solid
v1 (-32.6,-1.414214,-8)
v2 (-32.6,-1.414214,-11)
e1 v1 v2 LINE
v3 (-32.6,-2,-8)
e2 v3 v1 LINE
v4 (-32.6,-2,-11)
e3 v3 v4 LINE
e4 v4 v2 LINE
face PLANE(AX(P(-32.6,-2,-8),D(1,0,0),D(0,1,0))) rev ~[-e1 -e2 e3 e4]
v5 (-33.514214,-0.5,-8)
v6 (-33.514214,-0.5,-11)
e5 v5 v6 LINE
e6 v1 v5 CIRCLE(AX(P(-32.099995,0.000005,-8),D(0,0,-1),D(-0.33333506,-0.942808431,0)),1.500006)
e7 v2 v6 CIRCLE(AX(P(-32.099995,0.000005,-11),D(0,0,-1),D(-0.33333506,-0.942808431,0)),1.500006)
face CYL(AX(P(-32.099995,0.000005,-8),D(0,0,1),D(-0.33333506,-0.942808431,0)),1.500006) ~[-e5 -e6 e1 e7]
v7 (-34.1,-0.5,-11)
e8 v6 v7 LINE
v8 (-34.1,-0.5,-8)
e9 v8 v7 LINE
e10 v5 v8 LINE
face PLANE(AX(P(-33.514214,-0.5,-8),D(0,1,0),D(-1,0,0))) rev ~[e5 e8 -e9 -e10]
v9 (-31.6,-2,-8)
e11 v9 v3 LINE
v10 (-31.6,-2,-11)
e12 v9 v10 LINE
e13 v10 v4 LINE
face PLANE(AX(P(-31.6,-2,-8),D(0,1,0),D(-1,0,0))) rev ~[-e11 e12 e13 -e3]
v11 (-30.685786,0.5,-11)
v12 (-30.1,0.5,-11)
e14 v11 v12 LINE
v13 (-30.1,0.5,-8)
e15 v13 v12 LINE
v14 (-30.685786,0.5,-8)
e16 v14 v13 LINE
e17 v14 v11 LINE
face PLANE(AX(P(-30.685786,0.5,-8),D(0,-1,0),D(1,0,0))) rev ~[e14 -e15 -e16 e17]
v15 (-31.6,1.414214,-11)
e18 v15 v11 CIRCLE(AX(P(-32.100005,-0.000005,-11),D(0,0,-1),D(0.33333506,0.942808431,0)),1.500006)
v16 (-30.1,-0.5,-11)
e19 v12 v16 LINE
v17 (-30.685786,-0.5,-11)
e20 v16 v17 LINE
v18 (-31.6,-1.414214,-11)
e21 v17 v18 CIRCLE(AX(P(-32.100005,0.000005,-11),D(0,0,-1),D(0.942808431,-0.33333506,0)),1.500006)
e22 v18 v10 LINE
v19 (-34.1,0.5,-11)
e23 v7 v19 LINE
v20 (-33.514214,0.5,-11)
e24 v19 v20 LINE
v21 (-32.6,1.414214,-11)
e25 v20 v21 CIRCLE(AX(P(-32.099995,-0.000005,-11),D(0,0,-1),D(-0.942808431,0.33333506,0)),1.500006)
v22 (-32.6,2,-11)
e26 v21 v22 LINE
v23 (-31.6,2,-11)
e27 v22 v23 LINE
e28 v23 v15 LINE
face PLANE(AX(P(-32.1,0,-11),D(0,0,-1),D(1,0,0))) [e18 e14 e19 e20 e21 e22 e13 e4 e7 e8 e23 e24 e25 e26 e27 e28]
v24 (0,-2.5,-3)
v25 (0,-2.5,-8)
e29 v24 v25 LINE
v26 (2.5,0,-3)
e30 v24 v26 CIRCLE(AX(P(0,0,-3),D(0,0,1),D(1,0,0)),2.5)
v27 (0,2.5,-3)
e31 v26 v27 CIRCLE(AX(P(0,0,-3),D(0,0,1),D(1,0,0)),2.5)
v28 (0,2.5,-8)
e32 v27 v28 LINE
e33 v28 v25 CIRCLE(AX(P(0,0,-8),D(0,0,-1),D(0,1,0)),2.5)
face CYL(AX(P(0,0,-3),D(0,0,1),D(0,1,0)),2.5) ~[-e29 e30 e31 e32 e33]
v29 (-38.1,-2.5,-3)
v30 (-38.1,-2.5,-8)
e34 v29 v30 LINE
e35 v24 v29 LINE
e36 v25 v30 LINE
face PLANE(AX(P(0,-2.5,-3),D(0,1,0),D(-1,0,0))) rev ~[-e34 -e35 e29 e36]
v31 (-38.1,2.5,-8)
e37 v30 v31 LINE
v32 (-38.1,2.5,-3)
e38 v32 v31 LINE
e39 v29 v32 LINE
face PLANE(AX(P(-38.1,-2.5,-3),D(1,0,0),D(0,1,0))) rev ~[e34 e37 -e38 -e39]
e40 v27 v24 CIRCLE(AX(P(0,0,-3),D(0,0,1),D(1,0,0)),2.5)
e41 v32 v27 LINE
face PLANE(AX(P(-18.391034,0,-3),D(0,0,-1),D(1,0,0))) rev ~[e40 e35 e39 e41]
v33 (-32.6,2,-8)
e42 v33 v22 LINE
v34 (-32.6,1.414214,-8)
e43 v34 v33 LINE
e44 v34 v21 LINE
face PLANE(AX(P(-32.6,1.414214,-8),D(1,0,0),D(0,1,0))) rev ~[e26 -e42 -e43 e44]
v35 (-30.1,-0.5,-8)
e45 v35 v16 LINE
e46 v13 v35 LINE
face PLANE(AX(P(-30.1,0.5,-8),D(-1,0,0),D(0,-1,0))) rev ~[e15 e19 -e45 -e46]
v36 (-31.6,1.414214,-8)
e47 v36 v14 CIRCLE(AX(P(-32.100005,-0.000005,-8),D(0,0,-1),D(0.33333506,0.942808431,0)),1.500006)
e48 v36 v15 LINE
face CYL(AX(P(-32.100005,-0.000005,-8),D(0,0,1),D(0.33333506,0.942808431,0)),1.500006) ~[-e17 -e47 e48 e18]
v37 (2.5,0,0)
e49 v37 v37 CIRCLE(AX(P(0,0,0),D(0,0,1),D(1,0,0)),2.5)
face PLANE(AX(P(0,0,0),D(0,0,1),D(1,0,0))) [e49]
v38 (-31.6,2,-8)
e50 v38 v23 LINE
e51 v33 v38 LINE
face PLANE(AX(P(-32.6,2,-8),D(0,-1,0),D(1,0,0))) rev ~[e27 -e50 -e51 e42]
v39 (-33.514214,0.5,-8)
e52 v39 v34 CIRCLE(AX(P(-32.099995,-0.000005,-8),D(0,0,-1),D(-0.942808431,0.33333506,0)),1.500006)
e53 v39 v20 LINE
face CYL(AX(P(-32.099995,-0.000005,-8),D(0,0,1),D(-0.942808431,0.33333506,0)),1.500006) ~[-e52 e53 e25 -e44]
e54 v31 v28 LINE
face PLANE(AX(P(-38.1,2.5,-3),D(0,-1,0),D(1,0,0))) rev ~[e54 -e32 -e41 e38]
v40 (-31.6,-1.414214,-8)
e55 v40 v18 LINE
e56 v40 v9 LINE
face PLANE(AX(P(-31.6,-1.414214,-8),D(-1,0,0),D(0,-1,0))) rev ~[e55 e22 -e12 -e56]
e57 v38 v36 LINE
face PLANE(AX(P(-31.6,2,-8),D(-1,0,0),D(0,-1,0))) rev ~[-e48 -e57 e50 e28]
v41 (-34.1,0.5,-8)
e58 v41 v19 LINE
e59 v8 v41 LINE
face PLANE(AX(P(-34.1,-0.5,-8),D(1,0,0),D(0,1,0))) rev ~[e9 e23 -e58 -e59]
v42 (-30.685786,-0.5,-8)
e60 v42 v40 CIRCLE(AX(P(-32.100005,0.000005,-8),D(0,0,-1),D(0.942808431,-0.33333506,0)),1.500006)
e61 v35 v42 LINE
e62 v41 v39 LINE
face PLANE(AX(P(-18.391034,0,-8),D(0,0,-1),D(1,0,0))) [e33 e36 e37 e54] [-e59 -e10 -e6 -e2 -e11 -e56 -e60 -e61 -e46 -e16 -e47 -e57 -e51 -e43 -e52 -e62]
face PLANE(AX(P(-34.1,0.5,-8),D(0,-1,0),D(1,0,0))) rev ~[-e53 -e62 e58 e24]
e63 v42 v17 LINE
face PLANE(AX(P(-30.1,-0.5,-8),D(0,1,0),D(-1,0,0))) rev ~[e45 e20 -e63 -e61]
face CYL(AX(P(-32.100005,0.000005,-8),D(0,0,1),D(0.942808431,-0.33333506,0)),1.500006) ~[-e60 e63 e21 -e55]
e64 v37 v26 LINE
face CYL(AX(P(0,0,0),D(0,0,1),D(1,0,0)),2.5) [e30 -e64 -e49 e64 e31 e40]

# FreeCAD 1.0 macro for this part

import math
import FreeCAD as App
import Part
import Sketcher
Q = App.Units.Quantity

doc = App.newDocument("Part")
body = doc.addObject("PartDesign::Body", "Body")

# Sketch on XY plane
sketch1 = body.newObject("Sketcher::SketchObject", "Sketch")
sketch1.AttachmentSupport = (doc.getObject("XY_Plane"), [""])
sketch1.MapMode = "FlatFace"
sketch1.addGeometry(Part.Circle(App.Vector(0, 0, 0), App.Vector(0, 0, 1), 2.5), False)
sketch1.addConstraint(Sketcher.Constraint("Coincident", 0, 3, -1, 1))
sketch1.addConstraint(Sketcher.Constraint("Diameter", 0, Q("5 mm")))
pad1 = body.newObject("PartDesign::Pad", "Pad")
pad1.Profile = sketch1
pad1.Length = 3
pad1.Reversed = True

# Sketch on XY plane
sketch2 = body.newObject("Sketcher::SketchObject", "Sketch001")
sketch2.AttachmentSupport = (doc.getObject("XY_Plane"), [""])
sketch2.MapMode = "FlatFace"
sketch2.AttachmentOffset = App.Placement(App.Vector(0, 0, -3), App.Rotation())
sketch2.addGeometry(Part.LineSegment(App.Vector(-38.1, 2.5, 0), App.Vector(0, 2.5, 0)), False)
sketch2.addGeometry(Part.ArcOfCircle(Part.Circle(App.Vector(0, 0, 0), App.Vector(0, 0, 1), 2.5), math.radians(-90), math.radians(90)), False)
sketch2.addGeometry(Part.LineSegment(App.Vector(0, -2.5, 0), App.Vector(-38.1, -2.5, 0)), False)
sketch2.addGeometry(Part.LineSegment(App.Vector(-38.1, -2.5, 0), App.Vector(-38.1, 2.5, 0)), False)
sketch2.addConstraint(Sketcher.Constraint("Tangent", 0, 2, 1, 2))
sketch2.addConstraint(Sketcher.Constraint("Tangent", 1, 1, 2, 1))
sketch2.addConstraint(Sketcher.Constraint("Coincident", 2, 2, 3, 1))
sketch2.addConstraint(Sketcher.Constraint("Coincident", 3, 2, 0, 1))
sketch2.addConstraint(Sketcher.Constraint("Horizontal", 0))
sketch2.addConstraint(Sketcher.Constraint("Horizontal", 2))
sketch2.addConstraint(Sketcher.Constraint("Vertical", 3))
sketch2.addConstraint(Sketcher.Constraint("Coincident", 1, 3, -1, 1))
sketch2.addConstraint(Sketcher.Constraint("Radius", 1, Q("2.5 mm")))
sketch2.addConstraint(Sketcher.Constraint("DistanceX", 0, 1, 0, 2, Q("38.1 mm")))
pad2 = body.newObject("PartDesign::Pad", "Pad001")
pad2.Profile = sketch2
pad2.Length = 5
pad2.Reversed = True

# Sketch on XY plane
sketch3 = body.newObject("Sketcher::SketchObject", "Sketch002")
sketch3.AttachmentSupport = (doc.getObject("XY_Plane"), [""])
sketch3.MapMode = "FlatFace"
sketch3.AttachmentOffset = App.Placement(App.Vector(0, 0, -8), App.Rotation())
sketch3.addGeometry(Part.LineSegment(App.Vector(-32.6, -2, 0), App.Vector(-32.6, -1.4, 0)), False)
sketch3.addGeometry(Part.ArcOfCircle(Part.Circle(App.Vector(-32.1, 0, 0), App.Vector(0, 0, 1), 1.5), math.radians(-161), math.radians(-109)), False)
sketch3.addGeometry(Part.LineSegment(App.Vector(-33.5, -0.5, 0), App.Vector(-34.1, -0.5, 0)), False)
sketch3.addGeometry(Part.LineSegment(App.Vector(-34.1, -0.5, 0), App.Vector(-34.1, 0.5, 0)), False)
sketch3.addGeometry(Part.LineSegment(App.Vector(-34.1, 0.5, 0), App.Vector(-33.5, 0.5, 0)), False)
sketch3.addGeometry(Part.ArcOfCircle(Part.Circle(App.Vector(-32.1, 0, 0), App.Vector(0, 0, 1), 1.5), math.radians(109), math.radians(161)), False)
sketch3.addGeometry(Part.LineSegment(App.Vector(-32.6, 1.4, 0), App.Vector(-32.6, 2, 0)), False)
sketch3.addGeometry(Part.LineSegment(App.Vector(-32.6, 2, 0), App.Vector(-31.6, 2, 0)), False)
sketch3.addGeometry(Part.LineSegment(App.Vector(-31.6, 2, 0), App.Vector(-31.6, 1.4, 0)), False)
sketch3.addGeometry(Part.ArcOfCircle(Part.Circle(App.Vector(-32.1, 0, 0), App.Vector(0, 0, 1), 1.5), math.radians(19), math.radians(71)), False)
sketch3.addGeometry(Part.LineSegment(App.Vector(-30.7, 0.5, 0), App.Vector(-30.1, 0.5, 0)), False)
sketch3.addGeometry(Part.LineSegment(App.Vector(-30.1, 0.5, 0), App.Vector(-30.1, -0.5, 0)), False)
sketch3.addGeometry(Part.LineSegment(App.Vector(-30.1, -0.5, 0), App.Vector(-30.7, -0.5, 0)), False)
sketch3.addGeometry(Part.ArcOfCircle(Part.Circle(App.Vector(-32.1, 0, 0), App.Vector(0, 0, 1), 1.5), math.radians(-71), math.radians(-19)), False)
sketch3.addGeometry(Part.LineSegment(App.Vector(-31.6, -1.4, 0), App.Vector(-31.6, -2, 0)), False)
sketch3.addGeometry(Part.LineSegment(App.Vector(-31.6, -2, 0), App.Vector(-32.6, -2, 0)), False)
sketch3.addConstraint(Sketcher.Constraint("Coincident", 0, 2, 1, 2))
sketch3.addConstraint(Sketcher.Constraint("Coincident", 1, 1, 2, 1))
sketch3.addConstraint(Sketcher.Constraint("Coincident", 2, 2, 3, 1))
sketch3.addConstraint(Sketcher.Constraint("Coincident", 3, 2, 4, 1))
sketch3.addConstraint(Sketcher.Constraint("Coincident", 4, 2, 5, 2))
sketch3.addConstraint(Sketcher.Constraint("Coincident", 5, 1, 6, 1))
sketch3.addConstraint(Sketcher.Constraint("Coincident", 6, 2, 7, 1))
sketch3.addConstraint(Sketcher.Constraint("Coincident", 7, 2, 8, 1))
sketch3.addConstraint(Sketcher.Constraint("Coincident", 8, 2, 9, 2))
sketch3.addConstraint(Sketcher.Constraint("Coincident", 9, 1, 10, 1))
sketch3.addConstraint(Sketcher.Constraint("Coincident", 10, 2, 11, 1))
sketch3.addConstraint(Sketcher.Constraint("Coincident", 11, 2, 12, 1))
sketch3.addConstraint(Sketcher.Constraint("Coincident", 12, 2, 13, 2))
sketch3.addConstraint(Sketcher.Constraint("Coincident", 13, 1, 14, 1))
sketch3.addConstraint(Sketcher.Constraint("Coincident", 14, 2, 15, 1))
sketch3.addConstraint(Sketcher.Constraint("Coincident", 15, 2, 0, 1))
sketch3.addConstraint(Sketcher.Constraint("Vertical", 0))
sketch3.addConstraint(Sketcher.Constraint("Horizontal", 2))
sketch3.addConstraint(Sketcher.Constraint("Vertical", 3))
sketch3.addConstraint(Sketcher.Constraint("Horizontal", 4))
sketch3.addConstraint(Sketcher.Constraint("Vertical", 6))
sketch3.addConstraint(Sketcher.Constraint("Horizontal", 7))
sketch3.addConstraint(Sketcher.Constraint("Vertical", 8))
sketch3.addConstraint(Sketcher.Constraint("Horizontal", 10))
sketch3.addConstraint(Sketcher.Constraint("Vertical", 11))
sketch3.addConstraint(Sketcher.Constraint("Horizontal", 12))
sketch3.addConstraint(Sketcher.Constraint("Vertical", 14))
sketch3.addConstraint(Sketcher.Constraint("Horizontal", 15))
sketch3.addConstraint(Sketcher.Constraint("Coincident", 5, 3, 1, 3))
sketch3.addConstraint(Sketcher.Constraint("Coincident", 9, 3, 5, 3))
sketch3.addConstraint(Sketcher.Constraint("Coincident", 13, 3, 1, 3))
sketch3.addConstraint(Sketcher.Constraint("Equal", 1, 5))
sketch3.addConstraint(Sketcher.Constraint("Equal", 5, 9))
sketch3.addConstraint(Sketcher.Constraint("Equal", 9, 13))
sketch3.addConstraint(Sketcher.Constraint("Symmetric", 1, 1, 4, 2, -1))
sketch3.addConstraint(Sketcher.Constraint("Symmetric", 7, 2, 14, 2, -1))
sketch3.addConstraint(Sketcher.Constraint("Horizontal", 5, 1, 8, 2))
sketch3.addConstraint(Sketcher.Constraint("Horizontal", 4, 2, 9, 1))
sketch3.addConstraint(Sketcher.Constraint("Horizontal", 2, 2, 11, 2))
sketch3.addConstraint(Sketcher.Constraint("Horizontal", 0, 2, 13, 1))
sketch3.addConstraint(Sketcher.Constraint("Equal", 4, 10))
sketch3.addConstraint(Sketcher.Constraint("Equal", 12, 0))
sketch3.addConstraint(Sketcher.Constraint("Equal", 15, 3))
sketch3.addConstraint(Sketcher.Constraint("DistanceX", 7, 1, 7, 2, Q("1 mm")))
sketch3.addConstraint(Sketcher.Constraint("DistanceY", -1, 1, 6, 2, Q("2 mm")))
sketch3.addConstraint(Sketcher.Constraint("DistanceX", 0, 2, -1, 1, Q("32.6 mm")))
sketch3.addConstraint(Sketcher.Constraint("Radius", 1, Q("1.500006 mm")))
pad3 = body.newObject("PartDesign::Pad", "Pad002")
pad3.Profile = sketch3
pad3.Length = 3
pad3.Reversed = True

doc.recompute()
